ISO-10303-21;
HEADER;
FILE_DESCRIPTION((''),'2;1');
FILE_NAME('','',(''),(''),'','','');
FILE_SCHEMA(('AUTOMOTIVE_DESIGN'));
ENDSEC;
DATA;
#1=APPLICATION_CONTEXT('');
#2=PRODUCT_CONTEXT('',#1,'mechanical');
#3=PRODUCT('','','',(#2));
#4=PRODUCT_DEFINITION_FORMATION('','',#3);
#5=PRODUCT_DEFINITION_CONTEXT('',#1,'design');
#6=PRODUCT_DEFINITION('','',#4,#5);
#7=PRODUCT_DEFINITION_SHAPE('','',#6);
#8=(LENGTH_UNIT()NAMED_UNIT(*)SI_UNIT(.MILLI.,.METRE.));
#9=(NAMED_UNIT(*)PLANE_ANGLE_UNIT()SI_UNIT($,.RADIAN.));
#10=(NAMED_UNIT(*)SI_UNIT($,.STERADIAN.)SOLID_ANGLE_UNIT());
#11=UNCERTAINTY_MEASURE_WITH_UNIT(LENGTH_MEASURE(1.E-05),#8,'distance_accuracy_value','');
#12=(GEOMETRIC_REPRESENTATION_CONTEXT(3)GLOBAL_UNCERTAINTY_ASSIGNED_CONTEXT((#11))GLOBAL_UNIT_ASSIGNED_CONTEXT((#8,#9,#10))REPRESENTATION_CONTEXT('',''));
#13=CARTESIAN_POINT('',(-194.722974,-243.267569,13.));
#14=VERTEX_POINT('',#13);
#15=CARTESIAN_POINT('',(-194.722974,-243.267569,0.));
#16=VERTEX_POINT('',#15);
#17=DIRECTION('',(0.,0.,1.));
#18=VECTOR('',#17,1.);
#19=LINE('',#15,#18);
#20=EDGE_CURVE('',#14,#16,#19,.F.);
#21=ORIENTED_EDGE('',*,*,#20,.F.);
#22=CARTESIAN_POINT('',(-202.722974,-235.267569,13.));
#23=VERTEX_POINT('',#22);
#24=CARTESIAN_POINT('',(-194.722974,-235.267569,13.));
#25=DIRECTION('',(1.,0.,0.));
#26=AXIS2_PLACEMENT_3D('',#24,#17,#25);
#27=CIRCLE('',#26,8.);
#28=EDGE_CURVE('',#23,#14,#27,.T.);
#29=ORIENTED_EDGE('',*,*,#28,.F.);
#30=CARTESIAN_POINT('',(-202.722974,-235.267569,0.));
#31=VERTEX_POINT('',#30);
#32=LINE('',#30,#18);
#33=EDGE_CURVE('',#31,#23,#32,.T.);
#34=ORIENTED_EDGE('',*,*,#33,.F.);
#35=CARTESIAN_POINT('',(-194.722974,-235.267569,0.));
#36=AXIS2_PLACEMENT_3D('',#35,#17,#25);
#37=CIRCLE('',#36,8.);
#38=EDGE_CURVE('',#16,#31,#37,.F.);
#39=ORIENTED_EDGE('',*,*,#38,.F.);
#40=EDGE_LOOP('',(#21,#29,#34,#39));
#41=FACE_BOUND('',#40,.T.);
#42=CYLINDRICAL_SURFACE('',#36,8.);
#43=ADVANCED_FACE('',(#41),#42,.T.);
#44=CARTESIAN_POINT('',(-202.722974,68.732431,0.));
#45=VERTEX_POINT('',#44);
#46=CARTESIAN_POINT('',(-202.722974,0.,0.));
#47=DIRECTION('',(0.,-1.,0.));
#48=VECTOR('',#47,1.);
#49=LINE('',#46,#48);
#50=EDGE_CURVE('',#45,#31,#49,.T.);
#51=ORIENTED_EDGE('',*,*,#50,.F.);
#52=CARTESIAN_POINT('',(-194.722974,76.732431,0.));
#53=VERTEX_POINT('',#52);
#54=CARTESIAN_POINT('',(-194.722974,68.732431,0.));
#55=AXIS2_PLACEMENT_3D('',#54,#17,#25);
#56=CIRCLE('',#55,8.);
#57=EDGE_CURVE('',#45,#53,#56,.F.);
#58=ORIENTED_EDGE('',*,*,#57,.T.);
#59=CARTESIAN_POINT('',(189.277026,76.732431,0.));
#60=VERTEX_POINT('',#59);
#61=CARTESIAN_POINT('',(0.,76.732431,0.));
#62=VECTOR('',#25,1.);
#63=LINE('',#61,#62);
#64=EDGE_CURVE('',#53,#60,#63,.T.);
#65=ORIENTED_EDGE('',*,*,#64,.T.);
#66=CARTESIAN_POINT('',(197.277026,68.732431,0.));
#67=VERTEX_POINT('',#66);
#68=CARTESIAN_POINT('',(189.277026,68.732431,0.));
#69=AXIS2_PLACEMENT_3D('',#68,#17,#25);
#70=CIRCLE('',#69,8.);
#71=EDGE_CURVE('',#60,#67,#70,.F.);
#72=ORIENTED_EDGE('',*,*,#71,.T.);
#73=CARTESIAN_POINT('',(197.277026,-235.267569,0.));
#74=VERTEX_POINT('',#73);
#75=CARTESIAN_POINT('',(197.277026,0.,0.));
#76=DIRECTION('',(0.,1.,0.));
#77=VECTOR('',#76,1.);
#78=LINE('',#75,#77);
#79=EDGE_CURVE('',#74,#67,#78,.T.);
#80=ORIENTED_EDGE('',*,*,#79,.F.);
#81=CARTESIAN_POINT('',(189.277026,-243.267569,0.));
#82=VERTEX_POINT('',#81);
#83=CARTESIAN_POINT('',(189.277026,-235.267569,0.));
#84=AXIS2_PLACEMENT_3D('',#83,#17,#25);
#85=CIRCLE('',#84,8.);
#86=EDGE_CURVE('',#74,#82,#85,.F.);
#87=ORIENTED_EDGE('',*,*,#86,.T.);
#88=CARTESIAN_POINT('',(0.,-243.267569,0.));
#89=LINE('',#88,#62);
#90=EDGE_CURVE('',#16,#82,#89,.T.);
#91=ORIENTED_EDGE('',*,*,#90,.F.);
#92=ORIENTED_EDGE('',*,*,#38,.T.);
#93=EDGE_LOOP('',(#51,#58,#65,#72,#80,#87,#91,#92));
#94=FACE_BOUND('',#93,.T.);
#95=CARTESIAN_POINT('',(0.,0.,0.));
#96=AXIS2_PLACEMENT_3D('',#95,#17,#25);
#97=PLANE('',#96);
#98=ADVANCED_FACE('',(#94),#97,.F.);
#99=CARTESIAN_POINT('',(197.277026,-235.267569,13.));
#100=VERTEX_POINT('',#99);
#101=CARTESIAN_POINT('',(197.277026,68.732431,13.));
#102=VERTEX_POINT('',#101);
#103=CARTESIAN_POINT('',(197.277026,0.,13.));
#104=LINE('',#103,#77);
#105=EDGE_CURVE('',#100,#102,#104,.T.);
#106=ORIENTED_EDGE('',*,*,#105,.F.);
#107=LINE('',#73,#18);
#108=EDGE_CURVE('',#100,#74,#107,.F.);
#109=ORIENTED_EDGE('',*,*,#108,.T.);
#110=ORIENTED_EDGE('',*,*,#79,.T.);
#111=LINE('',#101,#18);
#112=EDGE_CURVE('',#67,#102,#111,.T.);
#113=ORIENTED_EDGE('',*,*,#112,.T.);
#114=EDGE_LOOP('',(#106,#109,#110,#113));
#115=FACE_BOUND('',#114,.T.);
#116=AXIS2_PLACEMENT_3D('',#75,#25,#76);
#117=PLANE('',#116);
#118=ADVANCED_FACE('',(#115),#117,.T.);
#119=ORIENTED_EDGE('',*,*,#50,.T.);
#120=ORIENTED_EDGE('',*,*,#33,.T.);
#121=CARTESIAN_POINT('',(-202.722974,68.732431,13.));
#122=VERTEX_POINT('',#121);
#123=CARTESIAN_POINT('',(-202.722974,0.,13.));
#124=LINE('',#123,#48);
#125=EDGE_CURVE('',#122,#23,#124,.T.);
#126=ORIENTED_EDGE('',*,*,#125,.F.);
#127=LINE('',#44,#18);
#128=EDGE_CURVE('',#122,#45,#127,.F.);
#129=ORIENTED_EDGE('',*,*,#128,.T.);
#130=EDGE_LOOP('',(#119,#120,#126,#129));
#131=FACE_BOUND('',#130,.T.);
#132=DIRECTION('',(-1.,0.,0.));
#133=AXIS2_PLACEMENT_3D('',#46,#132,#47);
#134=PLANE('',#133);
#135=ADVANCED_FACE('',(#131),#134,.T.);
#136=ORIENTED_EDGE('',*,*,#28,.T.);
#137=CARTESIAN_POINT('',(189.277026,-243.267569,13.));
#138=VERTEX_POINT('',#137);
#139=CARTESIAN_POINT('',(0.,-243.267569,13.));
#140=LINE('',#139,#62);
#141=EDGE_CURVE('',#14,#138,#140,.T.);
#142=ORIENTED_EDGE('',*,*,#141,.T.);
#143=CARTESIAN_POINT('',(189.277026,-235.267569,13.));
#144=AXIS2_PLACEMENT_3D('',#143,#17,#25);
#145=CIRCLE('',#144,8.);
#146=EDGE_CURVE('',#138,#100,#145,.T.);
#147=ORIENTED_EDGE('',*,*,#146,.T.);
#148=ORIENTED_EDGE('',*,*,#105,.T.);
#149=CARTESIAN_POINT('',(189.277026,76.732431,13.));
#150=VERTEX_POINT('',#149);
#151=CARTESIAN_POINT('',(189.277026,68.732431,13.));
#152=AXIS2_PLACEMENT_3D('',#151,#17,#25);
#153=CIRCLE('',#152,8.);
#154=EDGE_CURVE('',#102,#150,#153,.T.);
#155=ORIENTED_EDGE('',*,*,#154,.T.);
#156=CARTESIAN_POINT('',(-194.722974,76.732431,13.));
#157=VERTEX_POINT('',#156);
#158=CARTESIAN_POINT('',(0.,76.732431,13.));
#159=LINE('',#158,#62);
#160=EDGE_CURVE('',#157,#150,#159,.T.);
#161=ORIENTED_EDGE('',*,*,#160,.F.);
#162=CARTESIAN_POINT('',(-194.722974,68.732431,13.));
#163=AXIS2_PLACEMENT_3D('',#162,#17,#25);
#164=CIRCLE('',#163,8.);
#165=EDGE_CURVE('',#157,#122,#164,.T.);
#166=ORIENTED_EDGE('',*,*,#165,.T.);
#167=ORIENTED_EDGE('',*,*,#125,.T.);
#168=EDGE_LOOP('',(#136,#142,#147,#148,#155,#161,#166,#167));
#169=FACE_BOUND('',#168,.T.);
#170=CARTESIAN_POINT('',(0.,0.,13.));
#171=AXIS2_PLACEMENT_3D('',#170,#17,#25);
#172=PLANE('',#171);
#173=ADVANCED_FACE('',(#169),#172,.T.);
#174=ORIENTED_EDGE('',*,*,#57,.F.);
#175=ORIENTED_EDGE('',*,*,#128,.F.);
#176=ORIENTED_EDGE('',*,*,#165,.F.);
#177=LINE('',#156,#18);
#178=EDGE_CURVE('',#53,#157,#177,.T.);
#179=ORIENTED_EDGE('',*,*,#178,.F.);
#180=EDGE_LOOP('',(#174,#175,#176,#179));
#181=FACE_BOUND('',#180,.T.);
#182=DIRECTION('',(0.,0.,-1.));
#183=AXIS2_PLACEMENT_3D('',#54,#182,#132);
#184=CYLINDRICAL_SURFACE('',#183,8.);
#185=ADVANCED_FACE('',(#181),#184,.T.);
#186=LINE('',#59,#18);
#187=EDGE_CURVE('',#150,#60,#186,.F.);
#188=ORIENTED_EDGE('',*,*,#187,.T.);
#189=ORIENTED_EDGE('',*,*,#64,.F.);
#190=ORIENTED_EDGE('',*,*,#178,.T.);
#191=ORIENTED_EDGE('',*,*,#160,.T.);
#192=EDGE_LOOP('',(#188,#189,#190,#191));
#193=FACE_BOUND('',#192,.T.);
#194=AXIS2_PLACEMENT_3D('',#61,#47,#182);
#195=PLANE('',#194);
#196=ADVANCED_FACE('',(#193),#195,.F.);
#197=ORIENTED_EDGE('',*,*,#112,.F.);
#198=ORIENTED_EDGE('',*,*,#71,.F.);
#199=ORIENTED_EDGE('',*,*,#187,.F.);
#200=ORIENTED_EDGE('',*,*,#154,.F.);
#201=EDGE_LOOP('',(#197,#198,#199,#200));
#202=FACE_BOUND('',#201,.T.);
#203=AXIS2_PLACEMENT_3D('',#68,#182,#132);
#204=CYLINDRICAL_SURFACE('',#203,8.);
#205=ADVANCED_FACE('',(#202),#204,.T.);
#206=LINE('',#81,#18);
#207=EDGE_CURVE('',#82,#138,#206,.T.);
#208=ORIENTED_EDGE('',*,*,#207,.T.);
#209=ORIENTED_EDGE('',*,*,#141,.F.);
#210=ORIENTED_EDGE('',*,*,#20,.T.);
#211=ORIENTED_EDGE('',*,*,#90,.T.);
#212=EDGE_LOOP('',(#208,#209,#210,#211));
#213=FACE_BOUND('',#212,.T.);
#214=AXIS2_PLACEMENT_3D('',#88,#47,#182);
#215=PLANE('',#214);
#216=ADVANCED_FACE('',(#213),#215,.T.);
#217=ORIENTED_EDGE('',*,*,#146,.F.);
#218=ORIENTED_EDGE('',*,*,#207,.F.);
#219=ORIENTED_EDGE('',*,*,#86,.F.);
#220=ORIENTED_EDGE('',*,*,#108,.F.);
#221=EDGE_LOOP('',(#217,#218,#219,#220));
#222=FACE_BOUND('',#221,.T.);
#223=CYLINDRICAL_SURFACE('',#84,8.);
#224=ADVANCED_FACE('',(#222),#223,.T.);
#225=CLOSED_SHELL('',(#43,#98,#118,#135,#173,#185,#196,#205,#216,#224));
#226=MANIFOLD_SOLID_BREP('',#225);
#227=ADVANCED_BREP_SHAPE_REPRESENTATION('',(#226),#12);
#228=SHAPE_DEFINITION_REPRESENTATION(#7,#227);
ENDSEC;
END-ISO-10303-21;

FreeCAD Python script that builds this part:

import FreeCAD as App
import Part
import Sketcher
Q = App.Units.Quantity


def edges_at(feature, points):
    """Names of the edges that pass closest to the given points."""
    edges = feature.Shape.Edges
    near = lambda p: min(range(len(edges)), key=lambda i: edges[i].distToShape(Part.Vertex(*p))[0])
    return sorted({f"Edge{near(p) + 1}" for p in points})

doc = App.newDocument("Part")
body = doc.addObject("PartDesign::Body", "Body")

# Sketch on XY plane
sketch1 = body.newObject("Sketcher::SketchObject", "Sketch")
sketch1.AttachmentSupport = (doc.getObject("XY_Plane"), [""])
sketch1.MapMode = "FlatFace"
sketch1.AttachmentOffset = App.Placement(App.Vector(0, 0, 13), App.Rotation())
sketch1.addGeometry(Part.LineSegment(App.Vector(-203, 77, 0), App.Vector(-203, -243, 0)), False)
sketch1.addGeometry(Part.LineSegment(App.Vector(-203, -243, 0), App.Vector(197, -243, 0)), False)
sketch1.addGeometry(Part.LineSegment(App.Vector(197, -243, 0), App.Vector(197, 77, 0)), False)
sketch1.addGeometry(Part.LineSegment(App.Vector(197, 77, 0), App.Vector(-203, 77, 0)), False)
sketch1.addConstraint(Sketcher.Constraint("Coincident", 0, 2, 1, 1))
sketch1.addConstraint(Sketcher.Constraint("Coincident", 1, 2, 2, 1))
sketch1.addConstraint(Sketcher.Constraint("Coincident", 2, 2, 3, 1))
sketch1.addConstraint(Sketcher.Constraint("Coincident", 3, 2, 0, 1))
sketch1.addConstraint(Sketcher.Constraint("Vertical", 0))
sketch1.addConstraint(Sketcher.Constraint("Horizontal", 1))
sketch1.addConstraint(Sketcher.Constraint("Vertical", 2))
sketch1.addConstraint(Sketcher.Constraint("Horizontal", 3))
sketch1.addConstraint(Sketcher.Constraint("DistanceX", 1, 1, 1, 2, Q("400 mm")))
sketch1.addConstraint(Sketcher.Constraint("DistanceY", 0, 2, 0, 1, Q("320 mm")))
sketch1.addConstraint(Sketcher.Constraint("DistanceY", 0, 2, -1, 1, Q("243.267569 mm")))
sketch1.addConstraint(Sketcher.Constraint("DistanceX", 0, 2, -1, 1, Q("202.722974 mm")))
pad1 = body.newObject("PartDesign::Pad", "Pad")
pad1.Profile = sketch1
pad1.Length = 13
pad1.Reversed = True
doc.recompute()

fillet = body.newObject("PartDesign::Fillet", "Fillet")
fillet.Base = (pad1, edges_at(pad1, [
    (197.277, 76.732, 6.5),
    (197.277, -243.268, 6.5),
    (-202.723, -243.268, 6.5),
    (-202.723, 76.732, 6.5),
]))
fillet.Radius = 8

doc.recompute()
